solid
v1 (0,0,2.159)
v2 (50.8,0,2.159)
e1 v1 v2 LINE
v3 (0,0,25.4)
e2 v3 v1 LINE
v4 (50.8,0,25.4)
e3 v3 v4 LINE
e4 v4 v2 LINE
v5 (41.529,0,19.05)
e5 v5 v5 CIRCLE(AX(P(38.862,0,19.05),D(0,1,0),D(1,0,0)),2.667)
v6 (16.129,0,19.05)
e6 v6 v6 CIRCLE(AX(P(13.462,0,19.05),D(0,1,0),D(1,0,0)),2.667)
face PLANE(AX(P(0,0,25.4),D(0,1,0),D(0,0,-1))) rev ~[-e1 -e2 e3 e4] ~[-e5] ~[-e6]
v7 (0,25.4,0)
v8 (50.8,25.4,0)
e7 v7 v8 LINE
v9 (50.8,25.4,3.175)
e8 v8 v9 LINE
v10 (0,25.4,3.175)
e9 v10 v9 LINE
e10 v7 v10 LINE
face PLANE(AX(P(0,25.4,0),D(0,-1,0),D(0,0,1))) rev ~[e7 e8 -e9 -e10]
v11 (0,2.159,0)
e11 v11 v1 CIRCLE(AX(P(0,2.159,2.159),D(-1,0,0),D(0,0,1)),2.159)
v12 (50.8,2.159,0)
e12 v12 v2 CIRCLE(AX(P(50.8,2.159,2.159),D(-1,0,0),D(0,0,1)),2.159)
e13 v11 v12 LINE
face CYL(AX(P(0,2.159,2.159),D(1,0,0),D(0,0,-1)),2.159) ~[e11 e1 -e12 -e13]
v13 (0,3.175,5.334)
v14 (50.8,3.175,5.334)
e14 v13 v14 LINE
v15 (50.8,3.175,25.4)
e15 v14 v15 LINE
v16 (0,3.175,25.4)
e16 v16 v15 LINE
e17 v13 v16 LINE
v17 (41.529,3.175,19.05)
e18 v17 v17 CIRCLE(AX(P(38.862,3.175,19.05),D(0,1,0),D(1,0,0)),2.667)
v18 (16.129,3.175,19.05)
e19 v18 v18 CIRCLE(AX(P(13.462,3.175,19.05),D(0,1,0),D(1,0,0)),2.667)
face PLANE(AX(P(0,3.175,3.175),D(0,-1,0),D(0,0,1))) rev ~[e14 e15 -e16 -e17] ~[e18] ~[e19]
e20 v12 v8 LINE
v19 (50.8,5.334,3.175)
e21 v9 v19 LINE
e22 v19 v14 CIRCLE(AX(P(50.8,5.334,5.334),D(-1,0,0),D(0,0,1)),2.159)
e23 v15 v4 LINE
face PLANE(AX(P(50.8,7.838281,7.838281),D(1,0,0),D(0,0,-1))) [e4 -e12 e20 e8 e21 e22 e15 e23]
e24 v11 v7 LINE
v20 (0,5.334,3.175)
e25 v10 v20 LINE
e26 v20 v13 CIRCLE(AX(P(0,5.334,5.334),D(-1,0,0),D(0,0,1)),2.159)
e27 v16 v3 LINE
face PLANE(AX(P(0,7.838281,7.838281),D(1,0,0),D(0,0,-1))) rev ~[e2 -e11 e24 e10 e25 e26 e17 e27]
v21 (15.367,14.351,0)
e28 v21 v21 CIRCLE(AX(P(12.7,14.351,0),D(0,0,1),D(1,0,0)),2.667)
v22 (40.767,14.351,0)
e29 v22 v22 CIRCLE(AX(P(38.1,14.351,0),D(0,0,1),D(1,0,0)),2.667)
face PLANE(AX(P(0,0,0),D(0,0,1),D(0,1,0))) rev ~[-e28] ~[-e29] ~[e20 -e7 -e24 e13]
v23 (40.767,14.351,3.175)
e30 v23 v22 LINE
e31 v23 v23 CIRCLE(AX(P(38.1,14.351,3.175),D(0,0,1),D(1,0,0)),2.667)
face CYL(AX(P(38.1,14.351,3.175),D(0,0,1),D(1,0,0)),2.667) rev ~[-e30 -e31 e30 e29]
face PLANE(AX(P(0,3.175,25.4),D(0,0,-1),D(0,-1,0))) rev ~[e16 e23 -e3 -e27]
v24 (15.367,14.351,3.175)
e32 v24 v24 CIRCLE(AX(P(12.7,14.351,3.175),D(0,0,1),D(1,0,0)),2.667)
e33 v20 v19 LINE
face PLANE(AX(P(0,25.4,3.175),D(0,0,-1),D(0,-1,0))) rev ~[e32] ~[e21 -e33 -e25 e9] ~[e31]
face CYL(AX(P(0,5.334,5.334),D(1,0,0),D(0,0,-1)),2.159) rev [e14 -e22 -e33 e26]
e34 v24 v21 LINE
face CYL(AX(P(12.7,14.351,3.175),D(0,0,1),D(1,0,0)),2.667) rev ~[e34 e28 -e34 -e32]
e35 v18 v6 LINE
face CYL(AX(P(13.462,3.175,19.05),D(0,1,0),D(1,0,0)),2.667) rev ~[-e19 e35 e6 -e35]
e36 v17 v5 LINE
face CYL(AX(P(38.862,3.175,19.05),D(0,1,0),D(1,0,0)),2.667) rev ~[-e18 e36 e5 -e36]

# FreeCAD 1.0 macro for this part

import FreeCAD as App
import Part
import Sketcher

V = App.Vector
Q = App.Units.Quantity


def edges_at(feature, points):
    """Names of the edges that pass closest to the given points."""
    edges = feature.Shape.Edges
    near = lambda p: min(range(len(edges)), key=lambda i: edges[i].distToShape(Part.Vertex(*p))[0])
    return sorted({f"Edge{near(p) + 1}" for p in points})


def add_polygon(sketch, points):
    """Adds a closed chain of lines whose ends are joined by coincident constraints."""
    first, n = sketch.GeometryCount, len(points)
    for a, b in zip(points, points[1:] + points[:1]):
        sketch.addGeometry(Part.LineSegment(App.Vector(*a, 0), App.Vector(*b, 0)), False)
    for i in range(n):
        sketch.addConstraint(Sketcher.Constraint("Coincident", first + i, 2, first + (i + 1) % n, 1))

doc = App.newDocument("Part")
body = doc.addObject("PartDesign::Body", "Body")

# Sketch on YZ plane
sketch1 = body.newObject("Sketcher::SketchObject", "Sketch")
sketch1.AttachmentSupport = (doc.getObject("YZ_Plane"), [""])
sketch1.MapMode = "FlatFace"
add_polygon(sketch1, [(0, 0), (25.4, 0), (25.4, 3.2), (3.2, 3.2), (3.2, 25.4), (0, 25.4)])  # lines 0-5
sketch1.addConstraint([
    Sketcher.Constraint("Horizontal", 0),
    Sketcher.Constraint("Vertical", 1),
    Sketcher.Constraint("Horizontal", 2),
    Sketcher.Constraint("Vertical", 3),
    Sketcher.Constraint("Horizontal", 4),
    Sketcher.Constraint("Vertical", 5),
    Sketcher.Constraint("Coincident", 5, 2, -1, 1),
    Sketcher.Constraint("Equal", 4, 1),
    Sketcher.Constraint("Equal", 2, 3),
    Sketcher.Constraint("DistanceX", 0, 1, 0, 2, Q("1 in")),
    Sketcher.Constraint("DistanceX", 2, 2, 2, 1, Q("0.875 in")),
])
pad1 = body.newObject("PartDesign::Pad", "Pad")
pad1.Profile = sketch1
pad1.Length = Q("2 in")

# Sketch on XZ plane
sketch2 = body.newObject("Sketcher::SketchObject", "Sketch001")
sketch2.AttachmentSupport = (doc.getObject("XZ_Plane"), [""])
sketch2.MapMode = "FlatFace"
sketch2.AttachmentOffset = App.Placement(V(0, 0, -0.125 * 25.4), App.Rotation())
sketch2.addGeometry([
    Part.Circle(V(13.5, 19.1, 0), V(0, 0, 1), 2.7),
    Part.Circle(V(38.9, 19.1, 0), V(0, 0, 1), 2.7),
], False)
sketch2.addConstraint([
    Sketcher.Constraint("Equal", 0, 1),
    Sketcher.Constraint("Horizontal", 0, 3, 1, 3),
    Sketcher.Constraint("Diameter", 0, Q("0.21 in")),
    Sketcher.Constraint("DistanceX", 0, 3, 1, 3, Q("1 in")),
    Sketcher.Constraint("DistanceX", -1, 1, 0, 3, Q("0.53 in")),
    Sketcher.Constraint("DistanceY", -1, 1, 0, 3, Q("0.75 in")),
])
pocket1 = body.newObject("PartDesign::Pocket", "Pocket")
pocket1.Profile = sketch2
pocket1.Length = Q("0.125 in")
pocket1.Reversed = True

# Sketch on XY plane
sketch3 = body.newObject("Sketcher::SketchObject", "Sketch002")
sketch3.AttachmentSupport = (doc.getObject("XY_Plane"), [""])
sketch3.MapMode = "FlatFace"
sketch3.AttachmentOffset = App.Placement(V(0, 0, 0.125 * 25.4), App.Rotation())
sketch3.addGeometry([
    Part.Circle(V(38.1, 14.4, 0), V(0, 0, 1), 2.7),
    Part.Circle(V(12.7, 14.4, 0), V(0, 0, 1), 2.7),
], False)
sketch3.addConstraint([
    Sketcher.Constraint("Equal", 0, 1),
    Sketcher.Constraint("Horizontal", 0, 3, 1, 3),
    Sketcher.Constraint("Diameter", 0, Q("0.21 in")),
    Sketcher.Constraint("DistanceX", 1, 3, 0, 3, Q("1 in")),
    Sketcher.Constraint("DistanceX", -1, 1, 0, 3, Q("1.5 in")),
    Sketcher.Constraint("DistanceY", -1, 1, 0, 3, Q("0.565 in")),
])
pocket2 = body.newObject("PartDesign::Pocket", "Pocket001")
pocket2.Profile = sketch3
pocket2.Length = Q("0.125 in")
doc.recompute()

fillet = body.newObject("PartDesign::Fillet", "Fillet")
fillet.Base = (pocket2, edges_at(pocket2, [(25.4, 3.175, 3.175), (25.4, 0, 0)]))
fillet.Radius = Q("0.085 in")

doc.recompute()
